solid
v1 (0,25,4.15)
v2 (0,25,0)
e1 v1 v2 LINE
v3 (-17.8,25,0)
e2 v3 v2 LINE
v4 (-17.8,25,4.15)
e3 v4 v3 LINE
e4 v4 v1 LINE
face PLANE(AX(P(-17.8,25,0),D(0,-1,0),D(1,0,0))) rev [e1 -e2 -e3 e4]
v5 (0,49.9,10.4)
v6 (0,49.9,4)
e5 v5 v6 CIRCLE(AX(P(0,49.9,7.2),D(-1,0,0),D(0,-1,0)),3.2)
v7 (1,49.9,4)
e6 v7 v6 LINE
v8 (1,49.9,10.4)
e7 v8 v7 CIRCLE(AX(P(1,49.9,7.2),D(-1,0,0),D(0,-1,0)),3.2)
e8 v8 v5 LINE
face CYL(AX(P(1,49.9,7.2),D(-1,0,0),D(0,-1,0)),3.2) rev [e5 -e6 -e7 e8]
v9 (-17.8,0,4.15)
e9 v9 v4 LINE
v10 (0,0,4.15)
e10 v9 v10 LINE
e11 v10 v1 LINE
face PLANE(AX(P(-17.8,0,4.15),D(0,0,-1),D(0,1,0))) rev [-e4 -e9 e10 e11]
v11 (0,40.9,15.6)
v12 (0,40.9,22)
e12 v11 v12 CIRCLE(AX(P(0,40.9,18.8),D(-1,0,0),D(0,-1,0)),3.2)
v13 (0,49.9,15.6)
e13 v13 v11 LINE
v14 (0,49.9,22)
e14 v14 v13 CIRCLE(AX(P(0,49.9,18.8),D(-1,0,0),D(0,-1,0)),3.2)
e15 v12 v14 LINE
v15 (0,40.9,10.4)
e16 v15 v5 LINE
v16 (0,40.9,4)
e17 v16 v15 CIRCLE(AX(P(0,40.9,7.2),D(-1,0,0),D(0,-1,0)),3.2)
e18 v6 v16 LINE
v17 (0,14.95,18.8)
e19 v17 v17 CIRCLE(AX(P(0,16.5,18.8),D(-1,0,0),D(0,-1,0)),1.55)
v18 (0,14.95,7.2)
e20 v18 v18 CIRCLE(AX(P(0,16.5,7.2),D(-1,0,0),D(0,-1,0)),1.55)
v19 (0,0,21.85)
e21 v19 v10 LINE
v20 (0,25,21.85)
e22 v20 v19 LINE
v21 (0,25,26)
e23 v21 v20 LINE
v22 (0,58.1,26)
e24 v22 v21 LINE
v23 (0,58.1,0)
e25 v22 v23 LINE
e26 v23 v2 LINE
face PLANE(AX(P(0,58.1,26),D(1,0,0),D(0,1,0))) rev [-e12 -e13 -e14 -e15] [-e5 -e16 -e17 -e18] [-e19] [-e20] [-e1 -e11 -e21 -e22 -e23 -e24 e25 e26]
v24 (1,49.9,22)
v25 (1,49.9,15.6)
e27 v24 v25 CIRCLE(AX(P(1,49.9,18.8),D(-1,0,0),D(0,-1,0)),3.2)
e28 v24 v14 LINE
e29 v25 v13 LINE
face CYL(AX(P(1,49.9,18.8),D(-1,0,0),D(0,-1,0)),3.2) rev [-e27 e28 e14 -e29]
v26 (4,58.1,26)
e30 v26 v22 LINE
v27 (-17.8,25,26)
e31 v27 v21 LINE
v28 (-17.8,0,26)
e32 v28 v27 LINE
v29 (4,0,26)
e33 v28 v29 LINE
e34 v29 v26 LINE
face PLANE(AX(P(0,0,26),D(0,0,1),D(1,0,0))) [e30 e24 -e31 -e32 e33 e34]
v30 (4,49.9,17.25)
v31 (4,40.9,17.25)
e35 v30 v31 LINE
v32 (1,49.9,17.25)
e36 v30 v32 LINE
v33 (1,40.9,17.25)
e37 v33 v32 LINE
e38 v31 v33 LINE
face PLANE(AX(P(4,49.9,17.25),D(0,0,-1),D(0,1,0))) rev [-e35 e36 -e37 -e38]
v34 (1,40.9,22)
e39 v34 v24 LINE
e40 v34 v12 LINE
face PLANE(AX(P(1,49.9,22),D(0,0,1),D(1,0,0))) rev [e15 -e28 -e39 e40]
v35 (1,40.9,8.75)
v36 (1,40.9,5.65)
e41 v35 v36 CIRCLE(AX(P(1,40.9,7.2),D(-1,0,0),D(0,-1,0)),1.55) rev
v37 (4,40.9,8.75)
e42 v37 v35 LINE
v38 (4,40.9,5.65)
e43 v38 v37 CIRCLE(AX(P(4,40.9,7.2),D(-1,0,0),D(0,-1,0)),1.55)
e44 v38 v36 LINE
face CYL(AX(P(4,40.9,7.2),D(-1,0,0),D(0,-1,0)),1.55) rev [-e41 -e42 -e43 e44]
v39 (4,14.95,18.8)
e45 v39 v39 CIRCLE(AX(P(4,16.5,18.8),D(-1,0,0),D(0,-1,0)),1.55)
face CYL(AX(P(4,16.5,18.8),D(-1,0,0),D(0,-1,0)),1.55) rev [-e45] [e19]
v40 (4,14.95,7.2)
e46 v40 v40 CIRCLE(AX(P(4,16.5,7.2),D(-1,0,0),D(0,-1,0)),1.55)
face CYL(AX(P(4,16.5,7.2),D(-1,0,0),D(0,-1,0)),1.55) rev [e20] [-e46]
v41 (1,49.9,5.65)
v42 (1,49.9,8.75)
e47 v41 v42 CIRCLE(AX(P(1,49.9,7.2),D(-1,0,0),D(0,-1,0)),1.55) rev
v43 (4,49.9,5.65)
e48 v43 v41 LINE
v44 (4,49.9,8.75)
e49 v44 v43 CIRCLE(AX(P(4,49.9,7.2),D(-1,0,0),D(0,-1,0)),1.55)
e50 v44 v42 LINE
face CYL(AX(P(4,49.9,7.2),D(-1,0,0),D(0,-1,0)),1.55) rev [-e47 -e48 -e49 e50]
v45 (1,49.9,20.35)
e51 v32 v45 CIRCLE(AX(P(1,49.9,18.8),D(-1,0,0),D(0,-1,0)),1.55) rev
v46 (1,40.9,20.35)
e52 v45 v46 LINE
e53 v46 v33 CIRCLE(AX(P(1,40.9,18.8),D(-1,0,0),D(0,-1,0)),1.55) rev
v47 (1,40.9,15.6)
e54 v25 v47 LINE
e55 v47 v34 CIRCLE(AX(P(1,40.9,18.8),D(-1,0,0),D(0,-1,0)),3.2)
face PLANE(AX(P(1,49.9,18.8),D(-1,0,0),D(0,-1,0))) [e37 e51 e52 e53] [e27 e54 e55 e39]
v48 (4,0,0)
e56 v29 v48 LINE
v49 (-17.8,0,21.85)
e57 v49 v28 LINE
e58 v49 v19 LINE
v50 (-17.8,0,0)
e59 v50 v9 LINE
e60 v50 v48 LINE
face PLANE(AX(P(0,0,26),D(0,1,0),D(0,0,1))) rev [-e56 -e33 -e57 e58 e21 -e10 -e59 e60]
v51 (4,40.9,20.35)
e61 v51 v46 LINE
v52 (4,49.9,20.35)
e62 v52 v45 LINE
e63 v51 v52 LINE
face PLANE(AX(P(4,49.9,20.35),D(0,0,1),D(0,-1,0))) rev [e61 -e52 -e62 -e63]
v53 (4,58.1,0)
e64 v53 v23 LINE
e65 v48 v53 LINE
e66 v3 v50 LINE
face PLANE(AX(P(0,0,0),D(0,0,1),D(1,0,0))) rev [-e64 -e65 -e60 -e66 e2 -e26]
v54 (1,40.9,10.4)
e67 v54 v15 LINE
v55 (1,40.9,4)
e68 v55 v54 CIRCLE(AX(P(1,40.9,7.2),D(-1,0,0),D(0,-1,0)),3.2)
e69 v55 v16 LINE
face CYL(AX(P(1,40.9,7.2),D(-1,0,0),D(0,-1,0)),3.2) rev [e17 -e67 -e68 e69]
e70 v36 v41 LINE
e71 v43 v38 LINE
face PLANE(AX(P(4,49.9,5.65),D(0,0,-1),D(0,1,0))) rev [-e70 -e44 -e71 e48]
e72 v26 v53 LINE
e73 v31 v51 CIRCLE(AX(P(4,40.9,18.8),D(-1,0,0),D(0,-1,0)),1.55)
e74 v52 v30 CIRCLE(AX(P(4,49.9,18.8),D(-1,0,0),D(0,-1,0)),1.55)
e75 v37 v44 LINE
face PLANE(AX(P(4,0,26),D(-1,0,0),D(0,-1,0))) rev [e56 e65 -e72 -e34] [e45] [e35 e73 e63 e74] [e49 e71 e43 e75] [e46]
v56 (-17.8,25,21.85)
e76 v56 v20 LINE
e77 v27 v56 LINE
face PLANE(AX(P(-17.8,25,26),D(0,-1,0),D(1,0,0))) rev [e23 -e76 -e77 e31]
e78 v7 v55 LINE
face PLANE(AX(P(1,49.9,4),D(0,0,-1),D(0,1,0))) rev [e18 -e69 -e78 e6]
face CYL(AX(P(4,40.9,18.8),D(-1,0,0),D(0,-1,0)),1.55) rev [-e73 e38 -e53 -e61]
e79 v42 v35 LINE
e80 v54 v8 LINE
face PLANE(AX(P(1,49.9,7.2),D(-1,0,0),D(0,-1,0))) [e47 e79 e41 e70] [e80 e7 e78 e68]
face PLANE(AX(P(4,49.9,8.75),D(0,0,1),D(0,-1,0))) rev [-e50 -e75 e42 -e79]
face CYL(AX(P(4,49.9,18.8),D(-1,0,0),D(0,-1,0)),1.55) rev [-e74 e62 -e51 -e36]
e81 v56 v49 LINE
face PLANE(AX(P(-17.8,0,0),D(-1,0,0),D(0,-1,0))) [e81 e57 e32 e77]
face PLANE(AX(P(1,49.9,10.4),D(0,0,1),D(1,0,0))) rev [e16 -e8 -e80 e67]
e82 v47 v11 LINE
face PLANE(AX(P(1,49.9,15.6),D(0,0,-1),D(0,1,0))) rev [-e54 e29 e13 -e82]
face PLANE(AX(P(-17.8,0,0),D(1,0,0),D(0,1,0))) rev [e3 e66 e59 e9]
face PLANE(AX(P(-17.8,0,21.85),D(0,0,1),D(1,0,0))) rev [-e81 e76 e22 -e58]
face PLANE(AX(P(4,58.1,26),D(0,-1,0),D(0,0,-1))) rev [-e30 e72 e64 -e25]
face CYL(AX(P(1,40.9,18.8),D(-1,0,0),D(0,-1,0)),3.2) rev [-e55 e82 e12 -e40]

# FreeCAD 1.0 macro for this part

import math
import FreeCAD as App
import Part
import Sketcher
from FreeCAD import Vector


def add_polygon(sketch, points):
    """Adds a closed chain of lines whose ends are joined by coincident constraints."""
    first, n = sketch.GeometryCount, len(points)
    for a, b in zip(points, points[1:] + points[:1]):
        sketch.addGeometry(Part.LineSegment(App.Vector(*a, 0), App.Vector(*b, 0)), False)
    for i in range(n):
        sketch.addConstraint(Sketcher.Constraint("Coincident", first + i, 2, first + (i + 1) % n, 1))

doc = App.newDocument("Part")
body = doc.addObject("PartDesign::Body", "Body")

# Sketch on XY plane
sketch1 = doc.addObject("Sketcher::SketchObject", "Sketch")
body.addObject(sketch1)
sketch1.AttachmentSupport = (doc.XY_Plane, [""])
sketch1.MapMode = "FlatFace"
add_polygon(sketch1, [(0, 58.1), (0, 0), (4, 0), (4, 58.1)])  # lines 0-3
sketch1.addConstraint(Sketcher.Constraint("Vertical", 0))
sketch1.addConstraint(Sketcher.Constraint("Horizontal", 1))
sketch1.addConstraint(Sketcher.Constraint("Vertical", 2))
sketch1.addConstraint(Sketcher.Constraint("Horizontal", 3))
sketch1.addConstraint(Sketcher.Constraint("Coincident", 0, 2, -1, 1))
sketch1.addConstraint(Sketcher.Constraint("DistanceX", 1, 1, 1, 2, 4.0))
sketch1.addConstraint(Sketcher.Constraint("DistanceY", 0, 2, 0, 1, 58.1))
pad1 = doc.addObject("PartDesign::Pad", "Pad")
body.addObject(pad1)
pad1.Profile = sketch1
pad1.Length = 26

# Sketch on YZ plane
sketch2 = doc.addObject("Sketcher::SketchObject", "Sketch001")
body.addObject(sketch2)
sketch2.AttachmentSupport = (doc.YZ_Plane, [""])
sketch2.MapMode = "FlatFace"
sketch2.addGeometry(Part.Circle(Vector(16.5, 7.2, 0), Vector(0, 0, 1), 1.6), False)
sketch2.addGeometry(Part.Circle(Vector(16.5, 18.8, 0), Vector(0, 0, 1), 1.6), False)
sketch2.addGeometry(Part.LineSegment(Vector(49.9, 5.7, 0), Vector(40.9, 5.7, 0)), False)
sketch2.addGeometry(Part.ArcOfCircle(Part.Circle(Vector(40.9, 7.2, 0), Vector(0, 0, 1), 1.6), math.radians(90), math.radians(270)), False)
sketch2.addGeometry(Part.LineSegment(Vector(40.9, 8.8, 0), Vector(49.9, 8.8, 0)), False)
sketch2.addGeometry(Part.ArcOfCircle(Part.Circle(Vector(49.9, 7.2, 0), Vector(0, 0, 1), 1.6), math.radians(-90), math.radians(90)), False)
sketch2.addGeometry(Part.LineSegment(Vector(49.9, 17.2, 0), Vector(40.9, 17.2, 0)), False)
sketch2.addGeometry(Part.ArcOfCircle(Part.Circle(Vector(40.9, 18.8, 0), Vector(0, 0, 1), 1.6), math.radians(90), math.radians(270)), False)
sketch2.addGeometry(Part.LineSegment(Vector(40.9, 20.4, 0), Vector(49.9, 20.4, 0)), False)
sketch2.addGeometry(Part.ArcOfCircle(Part.Circle(Vector(49.9, 18.8, 0), Vector(0, 0, 1), 1.6), math.radians(-90), math.radians(90)), False)
sketch2.addConstraint(Sketcher.Constraint("Tangent", 2, 2, 3, 2))
sketch2.addConstraint(Sketcher.Constraint("Tangent", 3, 1, 4, 1))
sketch2.addConstraint(Sketcher.Constraint("Tangent", 4, 2, 5, 2))
sketch2.addConstraint(Sketcher.Constraint("Tangent", 5, 1, 2, 1))
sketch2.addConstraint(Sketcher.Constraint("Tangent", 6, 2, 7, 2))
sketch2.addConstraint(Sketcher.Constraint("Tangent", 7, 1, 8, 1))
sketch2.addConstraint(Sketcher.Constraint("Tangent", 8, 2, 9, 2))
sketch2.addConstraint(Sketcher.Constraint("Tangent", 9, 1, 6, 1))
sketch2.addConstraint(Sketcher.Constraint("Horizontal", 2))
sketch2.addConstraint(Sketcher.Constraint("Horizontal", 4))
sketch2.addConstraint(Sketcher.Constraint("Horizontal", 6))
sketch2.addConstraint(Sketcher.Constraint("Horizontal", 8))
sketch2.addConstraint(Sketcher.Constraint("Equal", 0, 1))
sketch2.addConstraint(Sketcher.Constraint("Equal", 1, 3))
sketch2.addConstraint(Sketcher.Constraint("Equal", 5, 7))
sketch2.addConstraint(Sketcher.Constraint("Horizontal", 0, 3, 3, 3))
sketch2.addConstraint(Sketcher.Constraint("Horizontal", 1, 3, 7, 3))
sketch2.addConstraint(Sketcher.Constraint("Vertical", 0, 3, 1, 3))
sketch2.addConstraint(Sketcher.Constraint("Vertical", 3, 3, 7, 3))
sketch2.addConstraint(Sketcher.Constraint("Vertical", 5, 3, 9, 3))
sketch2.addConstraint(Sketcher.Constraint("Diameter", 0, 3.1))
sketch2.addConstraint(Sketcher.Constraint("DistanceX", 2, 2, 2, 1, 9.0))
sketch2.addConstraint(Sketcher.Constraint("DistanceX", -1, 1, 0, 3, 16.5))
sketch2.addConstraint(Sketcher.Constraint("DistanceY", -1, 1, 0, 3, 7.2))
sketch2.addConstraint(Sketcher.Constraint("DistanceY", -1, 1, 1, 3, 18.8))
sketch2.addConstraint(Sketcher.Constraint("DistanceX", -1, 1, 3, 3, 40.9))
pocket1 = doc.addObject("PartDesign::Pocket", "Pocket")
body.addObject(pocket1)
pocket1.Profile = sketch2
pocket1.Type = "ThroughAll"
pocket1.Reversed = True

# Sketch on YZ plane
sketch3 = doc.addObject("Sketcher::SketchObject", "Sketch002")
body.addObject(sketch3)
sketch3.AttachmentSupport = (doc.YZ_Plane, [""])
sketch3.MapMode = "FlatFace"
sketch3.addGeometry(Part.LineSegment(Vector(40.9, 10.4, 0), Vector(49.9, 10.4, 0)), False)
sketch3.addGeometry(Part.ArcOfCircle(Part.Circle(Vector(49.9, 7.2, 0), Vector(0, 0, 1), 3.2), math.radians(-90), math.radians(90)), False)
sketch3.addGeometry(Part.LineSegment(Vector(49.9, 4, 0), Vector(40.9, 4, 0)), False)
sketch3.addGeometry(Part.ArcOfCircle(Part.Circle(Vector(40.9, 7.2, 0), Vector(0, 0, 1), 3.2), math.radians(90), math.radians(270)), False)
sketch3.addGeometry(Part.LineSegment(Vector(40.9, 22, 0), Vector(49.9, 22, 0)), False)
sketch3.addGeometry(Part.ArcOfCircle(Part.Circle(Vector(49.9, 18.8, 0), Vector(0, 0, 1), 3.2), math.radians(-90), math.radians(90)), False)
sketch3.addGeometry(Part.LineSegment(Vector(49.9, 15.6, 0), Vector(40.9, 15.6, 0)), False)
sketch3.addGeometry(Part.ArcOfCircle(Part.Circle(Vector(40.9, 18.8, 0), Vector(0, 0, 1), 3.2), math.radians(90), math.radians(270)), False)
sketch3.addConstraint(Sketcher.Constraint("Tangent", 0, 2, 1, 2))
sketch3.addConstraint(Sketcher.Constraint("Tangent", 1, 1, 2, 1))
sketch3.addConstraint(Sketcher.Constraint("Tangent", 2, 2, 3, 2))
sketch3.addConstraint(Sketcher.Constraint("Tangent", 3, 1, 0, 1))
sketch3.addConstraint(Sketcher.Constraint("Tangent", 4, 2, 5, 2))
sketch3.addConstraint(Sketcher.Constraint("Tangent", 5, 1, 6, 1))
sketch3.addConstraint(Sketcher.Constraint("Tangent", 6, 2, 7, 2))
sketch3.addConstraint(Sketcher.Constraint("Tangent", 7, 1, 4, 1))
sketch3.addConstraint(Sketcher.Constraint("Horizontal", 0))
sketch3.addConstraint(Sketcher.Constraint("Horizontal", 2))
sketch3.addConstraint(Sketcher.Constraint("Horizontal", 4))
sketch3.addConstraint(Sketcher.Constraint("Horizontal", 6))
sketch3.addConstraint(Sketcher.Constraint("Equal", 3, 5))
sketch3.addConstraint(Sketcher.Constraint("Vertical", 1, 3, 5, 3))
sketch3.addConstraint(Sketcher.Constraint("Vertical", 3, 3, 7, 3))
sketch3.addConstraint(Sketcher.Constraint("Radius", 1, 3.2))
sketch3.addConstraint(Sketcher.Constraint("DistanceX", 0, 1, 0, 2, 9.0))
sketch3.addConstraint(Sketcher.Constraint("DistanceY", -1, 1, 1, 1, 4.0))
sketch3.addConstraint(Sketcher.Constraint("DistanceY", -1, 1, 4, 2, 22.0))
sketch3.addConstraint(Sketcher.Constraint("DistanceX", -1, 1, 1, 3, 49.9))
pocket2 = doc.addObject("PartDesign::Pocket", "Pocket001")
body.addObject(pocket2)
pocket2.Profile = sketch3
pocket2.Length = 1
pocket2.Reversed = True

# Sketch on YZ plane
sketch4 = doc.addObject("Sketcher::SketchObject", "Sketch003")
body.addObject(sketch4)
sketch4.AttachmentSupport = (doc.YZ_Plane, [""])
sketch4.MapMode = "FlatFace"
add_polygon(sketch4, [(25, 0), (0, 0), (0, 4.2), (25, 4.2)])  # lines 0-3
add_polygon(sketch4, [(25, 21.9), (0, 21.9), (0, 26), (25, 26)])  # lines 4-7
sketch4.addConstraint(Sketcher.Constraint("Horizontal", 0))
sketch4.addConstraint(Sketcher.Constraint("Vertical", 1))
sketch4.addConstraint(Sketcher.Constraint("Horizontal", 2))
sketch4.addConstraint(Sketcher.Constraint("Vertical", 3))
sketch4.addConstraint(Sketcher.Constraint("Horizontal", 4))
sketch4.addConstraint(Sketcher.Constraint("Vertical", 5))
sketch4.addConstraint(Sketcher.Constraint("Horizontal", 6))
sketch4.addConstraint(Sketcher.Constraint("Vertical", 7))
sketch4.addConstraint(Sketcher.Constraint("Coincident", 0, 2, -1, 1))
sketch4.addConstraint(Sketcher.Constraint("PointOnObject", 4, 2, -2))
sketch4.addConstraint(Sketcher.Constraint("Vertical", 3, 2, 6, 2))
sketch4.addConstraint(Sketcher.Constraint("Equal", 3, 5))
sketch4.addConstraint(Sketcher.Constraint("DistanceX", 0, 2, 0, 1, 25.0))
sketch4.addConstraint(Sketcher.Constraint("DistanceY", -1, 1, 5, 2, 26.0))
sketch4.addConstraint(Sketcher.Constraint("DistanceY", 1, 1, 1, 2, 4.15))
pad2 = doc.addObject("PartDesign::Pad", "Pad001")
body.addObject(pad2)
pad2.Profile = sketch4
pad2.Length = 17.8
pad2.Reversed = True

doc.recompute()
